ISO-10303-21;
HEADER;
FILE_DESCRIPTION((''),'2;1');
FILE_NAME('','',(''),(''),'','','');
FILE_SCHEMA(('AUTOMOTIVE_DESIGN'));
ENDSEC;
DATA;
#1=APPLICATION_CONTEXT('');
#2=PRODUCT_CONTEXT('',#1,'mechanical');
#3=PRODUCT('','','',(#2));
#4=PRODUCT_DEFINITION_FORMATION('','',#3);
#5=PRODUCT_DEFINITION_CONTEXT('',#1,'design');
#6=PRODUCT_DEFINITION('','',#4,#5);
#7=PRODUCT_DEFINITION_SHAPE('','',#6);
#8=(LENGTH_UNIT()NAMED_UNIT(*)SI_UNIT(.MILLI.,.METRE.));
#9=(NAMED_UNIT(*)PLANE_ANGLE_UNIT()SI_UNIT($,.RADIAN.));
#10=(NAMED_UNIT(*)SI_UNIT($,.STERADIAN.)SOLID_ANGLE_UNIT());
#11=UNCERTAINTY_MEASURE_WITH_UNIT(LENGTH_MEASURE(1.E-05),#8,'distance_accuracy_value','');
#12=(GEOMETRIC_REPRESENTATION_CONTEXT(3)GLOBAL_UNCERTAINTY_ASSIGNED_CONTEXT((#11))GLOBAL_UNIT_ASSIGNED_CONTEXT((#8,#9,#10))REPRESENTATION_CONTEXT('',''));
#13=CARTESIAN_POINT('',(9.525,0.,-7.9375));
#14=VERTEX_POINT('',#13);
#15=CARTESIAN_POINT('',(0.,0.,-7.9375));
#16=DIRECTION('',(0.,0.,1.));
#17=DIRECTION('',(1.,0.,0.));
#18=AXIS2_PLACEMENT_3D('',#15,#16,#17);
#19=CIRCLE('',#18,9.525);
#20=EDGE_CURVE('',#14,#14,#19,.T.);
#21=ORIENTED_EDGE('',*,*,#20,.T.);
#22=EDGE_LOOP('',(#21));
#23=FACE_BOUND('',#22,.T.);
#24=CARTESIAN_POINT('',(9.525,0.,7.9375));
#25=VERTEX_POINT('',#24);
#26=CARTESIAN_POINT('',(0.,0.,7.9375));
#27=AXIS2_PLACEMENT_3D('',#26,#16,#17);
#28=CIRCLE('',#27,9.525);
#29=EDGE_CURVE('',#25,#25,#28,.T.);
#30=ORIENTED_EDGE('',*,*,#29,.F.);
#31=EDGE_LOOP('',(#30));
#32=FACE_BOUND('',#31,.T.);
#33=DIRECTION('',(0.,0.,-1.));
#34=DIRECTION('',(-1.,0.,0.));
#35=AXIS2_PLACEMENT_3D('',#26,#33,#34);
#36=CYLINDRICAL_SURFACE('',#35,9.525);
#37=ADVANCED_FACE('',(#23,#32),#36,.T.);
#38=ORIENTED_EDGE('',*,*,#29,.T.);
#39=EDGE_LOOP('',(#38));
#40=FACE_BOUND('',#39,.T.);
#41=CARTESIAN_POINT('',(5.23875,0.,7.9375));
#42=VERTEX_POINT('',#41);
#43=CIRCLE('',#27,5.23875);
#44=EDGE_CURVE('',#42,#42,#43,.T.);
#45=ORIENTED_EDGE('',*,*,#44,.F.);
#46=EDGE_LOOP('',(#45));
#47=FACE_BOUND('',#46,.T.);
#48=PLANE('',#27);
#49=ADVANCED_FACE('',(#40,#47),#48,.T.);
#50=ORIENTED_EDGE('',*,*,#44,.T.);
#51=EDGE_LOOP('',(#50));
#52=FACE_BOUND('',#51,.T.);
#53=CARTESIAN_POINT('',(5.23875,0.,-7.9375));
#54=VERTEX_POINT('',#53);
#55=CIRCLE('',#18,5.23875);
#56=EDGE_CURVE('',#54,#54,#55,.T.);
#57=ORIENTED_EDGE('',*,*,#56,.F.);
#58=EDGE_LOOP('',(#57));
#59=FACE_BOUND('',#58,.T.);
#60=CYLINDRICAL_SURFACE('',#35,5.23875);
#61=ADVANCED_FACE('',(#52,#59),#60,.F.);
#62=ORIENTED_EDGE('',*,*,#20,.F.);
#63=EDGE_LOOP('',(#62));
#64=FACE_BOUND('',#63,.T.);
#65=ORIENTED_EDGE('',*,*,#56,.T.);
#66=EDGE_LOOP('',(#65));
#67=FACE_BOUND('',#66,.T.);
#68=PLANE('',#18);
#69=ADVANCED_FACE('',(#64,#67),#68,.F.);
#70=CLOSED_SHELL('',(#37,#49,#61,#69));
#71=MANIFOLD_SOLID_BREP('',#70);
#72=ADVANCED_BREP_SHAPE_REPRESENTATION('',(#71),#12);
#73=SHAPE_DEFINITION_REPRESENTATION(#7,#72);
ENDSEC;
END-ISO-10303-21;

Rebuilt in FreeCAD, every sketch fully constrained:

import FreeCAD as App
import Part
import Sketcher

V = App.Vector
Q = App.Units.Quantity

doc = App.newDocument("Part")
body = doc.addObject("PartDesign::Body", "Body")

sketch1 = body.newObject("Sketcher::SketchObject", "Sketch")
sketch1.AttachmentSupport = (doc.getObject("XY_Plane"), [""])
sketch1.MapMode = "FlatFace"
sketch1.addGeometry(Part.Circle(V(0, 0, 0), V(0, 0, 1), 10), False)
sketch1.addGeometry(Part.Circle(V(0, 0, 0), V(0, 0, 1), 5), False)
sketch1.addConstraint(Sketcher.Constraint("Coincident", 0, 3, -1, 1))
sketch1.addConstraint(Sketcher.Constraint("Coincident", 1, 3, -1, 1))
sketch1.addConstraint(Sketcher.Constraint("Diameter", 0, Q("0.75 in")))
sketch1.addConstraint(Sketcher.Constraint("Diameter", 1, Q("0.4125 in")))
pad1 = body.newObject("PartDesign::Pad", "Pad")
pad1.Profile = sketch1
pad1.Length = Q("0.625 in")
pad1.Midplane = True

doc.recompute()
